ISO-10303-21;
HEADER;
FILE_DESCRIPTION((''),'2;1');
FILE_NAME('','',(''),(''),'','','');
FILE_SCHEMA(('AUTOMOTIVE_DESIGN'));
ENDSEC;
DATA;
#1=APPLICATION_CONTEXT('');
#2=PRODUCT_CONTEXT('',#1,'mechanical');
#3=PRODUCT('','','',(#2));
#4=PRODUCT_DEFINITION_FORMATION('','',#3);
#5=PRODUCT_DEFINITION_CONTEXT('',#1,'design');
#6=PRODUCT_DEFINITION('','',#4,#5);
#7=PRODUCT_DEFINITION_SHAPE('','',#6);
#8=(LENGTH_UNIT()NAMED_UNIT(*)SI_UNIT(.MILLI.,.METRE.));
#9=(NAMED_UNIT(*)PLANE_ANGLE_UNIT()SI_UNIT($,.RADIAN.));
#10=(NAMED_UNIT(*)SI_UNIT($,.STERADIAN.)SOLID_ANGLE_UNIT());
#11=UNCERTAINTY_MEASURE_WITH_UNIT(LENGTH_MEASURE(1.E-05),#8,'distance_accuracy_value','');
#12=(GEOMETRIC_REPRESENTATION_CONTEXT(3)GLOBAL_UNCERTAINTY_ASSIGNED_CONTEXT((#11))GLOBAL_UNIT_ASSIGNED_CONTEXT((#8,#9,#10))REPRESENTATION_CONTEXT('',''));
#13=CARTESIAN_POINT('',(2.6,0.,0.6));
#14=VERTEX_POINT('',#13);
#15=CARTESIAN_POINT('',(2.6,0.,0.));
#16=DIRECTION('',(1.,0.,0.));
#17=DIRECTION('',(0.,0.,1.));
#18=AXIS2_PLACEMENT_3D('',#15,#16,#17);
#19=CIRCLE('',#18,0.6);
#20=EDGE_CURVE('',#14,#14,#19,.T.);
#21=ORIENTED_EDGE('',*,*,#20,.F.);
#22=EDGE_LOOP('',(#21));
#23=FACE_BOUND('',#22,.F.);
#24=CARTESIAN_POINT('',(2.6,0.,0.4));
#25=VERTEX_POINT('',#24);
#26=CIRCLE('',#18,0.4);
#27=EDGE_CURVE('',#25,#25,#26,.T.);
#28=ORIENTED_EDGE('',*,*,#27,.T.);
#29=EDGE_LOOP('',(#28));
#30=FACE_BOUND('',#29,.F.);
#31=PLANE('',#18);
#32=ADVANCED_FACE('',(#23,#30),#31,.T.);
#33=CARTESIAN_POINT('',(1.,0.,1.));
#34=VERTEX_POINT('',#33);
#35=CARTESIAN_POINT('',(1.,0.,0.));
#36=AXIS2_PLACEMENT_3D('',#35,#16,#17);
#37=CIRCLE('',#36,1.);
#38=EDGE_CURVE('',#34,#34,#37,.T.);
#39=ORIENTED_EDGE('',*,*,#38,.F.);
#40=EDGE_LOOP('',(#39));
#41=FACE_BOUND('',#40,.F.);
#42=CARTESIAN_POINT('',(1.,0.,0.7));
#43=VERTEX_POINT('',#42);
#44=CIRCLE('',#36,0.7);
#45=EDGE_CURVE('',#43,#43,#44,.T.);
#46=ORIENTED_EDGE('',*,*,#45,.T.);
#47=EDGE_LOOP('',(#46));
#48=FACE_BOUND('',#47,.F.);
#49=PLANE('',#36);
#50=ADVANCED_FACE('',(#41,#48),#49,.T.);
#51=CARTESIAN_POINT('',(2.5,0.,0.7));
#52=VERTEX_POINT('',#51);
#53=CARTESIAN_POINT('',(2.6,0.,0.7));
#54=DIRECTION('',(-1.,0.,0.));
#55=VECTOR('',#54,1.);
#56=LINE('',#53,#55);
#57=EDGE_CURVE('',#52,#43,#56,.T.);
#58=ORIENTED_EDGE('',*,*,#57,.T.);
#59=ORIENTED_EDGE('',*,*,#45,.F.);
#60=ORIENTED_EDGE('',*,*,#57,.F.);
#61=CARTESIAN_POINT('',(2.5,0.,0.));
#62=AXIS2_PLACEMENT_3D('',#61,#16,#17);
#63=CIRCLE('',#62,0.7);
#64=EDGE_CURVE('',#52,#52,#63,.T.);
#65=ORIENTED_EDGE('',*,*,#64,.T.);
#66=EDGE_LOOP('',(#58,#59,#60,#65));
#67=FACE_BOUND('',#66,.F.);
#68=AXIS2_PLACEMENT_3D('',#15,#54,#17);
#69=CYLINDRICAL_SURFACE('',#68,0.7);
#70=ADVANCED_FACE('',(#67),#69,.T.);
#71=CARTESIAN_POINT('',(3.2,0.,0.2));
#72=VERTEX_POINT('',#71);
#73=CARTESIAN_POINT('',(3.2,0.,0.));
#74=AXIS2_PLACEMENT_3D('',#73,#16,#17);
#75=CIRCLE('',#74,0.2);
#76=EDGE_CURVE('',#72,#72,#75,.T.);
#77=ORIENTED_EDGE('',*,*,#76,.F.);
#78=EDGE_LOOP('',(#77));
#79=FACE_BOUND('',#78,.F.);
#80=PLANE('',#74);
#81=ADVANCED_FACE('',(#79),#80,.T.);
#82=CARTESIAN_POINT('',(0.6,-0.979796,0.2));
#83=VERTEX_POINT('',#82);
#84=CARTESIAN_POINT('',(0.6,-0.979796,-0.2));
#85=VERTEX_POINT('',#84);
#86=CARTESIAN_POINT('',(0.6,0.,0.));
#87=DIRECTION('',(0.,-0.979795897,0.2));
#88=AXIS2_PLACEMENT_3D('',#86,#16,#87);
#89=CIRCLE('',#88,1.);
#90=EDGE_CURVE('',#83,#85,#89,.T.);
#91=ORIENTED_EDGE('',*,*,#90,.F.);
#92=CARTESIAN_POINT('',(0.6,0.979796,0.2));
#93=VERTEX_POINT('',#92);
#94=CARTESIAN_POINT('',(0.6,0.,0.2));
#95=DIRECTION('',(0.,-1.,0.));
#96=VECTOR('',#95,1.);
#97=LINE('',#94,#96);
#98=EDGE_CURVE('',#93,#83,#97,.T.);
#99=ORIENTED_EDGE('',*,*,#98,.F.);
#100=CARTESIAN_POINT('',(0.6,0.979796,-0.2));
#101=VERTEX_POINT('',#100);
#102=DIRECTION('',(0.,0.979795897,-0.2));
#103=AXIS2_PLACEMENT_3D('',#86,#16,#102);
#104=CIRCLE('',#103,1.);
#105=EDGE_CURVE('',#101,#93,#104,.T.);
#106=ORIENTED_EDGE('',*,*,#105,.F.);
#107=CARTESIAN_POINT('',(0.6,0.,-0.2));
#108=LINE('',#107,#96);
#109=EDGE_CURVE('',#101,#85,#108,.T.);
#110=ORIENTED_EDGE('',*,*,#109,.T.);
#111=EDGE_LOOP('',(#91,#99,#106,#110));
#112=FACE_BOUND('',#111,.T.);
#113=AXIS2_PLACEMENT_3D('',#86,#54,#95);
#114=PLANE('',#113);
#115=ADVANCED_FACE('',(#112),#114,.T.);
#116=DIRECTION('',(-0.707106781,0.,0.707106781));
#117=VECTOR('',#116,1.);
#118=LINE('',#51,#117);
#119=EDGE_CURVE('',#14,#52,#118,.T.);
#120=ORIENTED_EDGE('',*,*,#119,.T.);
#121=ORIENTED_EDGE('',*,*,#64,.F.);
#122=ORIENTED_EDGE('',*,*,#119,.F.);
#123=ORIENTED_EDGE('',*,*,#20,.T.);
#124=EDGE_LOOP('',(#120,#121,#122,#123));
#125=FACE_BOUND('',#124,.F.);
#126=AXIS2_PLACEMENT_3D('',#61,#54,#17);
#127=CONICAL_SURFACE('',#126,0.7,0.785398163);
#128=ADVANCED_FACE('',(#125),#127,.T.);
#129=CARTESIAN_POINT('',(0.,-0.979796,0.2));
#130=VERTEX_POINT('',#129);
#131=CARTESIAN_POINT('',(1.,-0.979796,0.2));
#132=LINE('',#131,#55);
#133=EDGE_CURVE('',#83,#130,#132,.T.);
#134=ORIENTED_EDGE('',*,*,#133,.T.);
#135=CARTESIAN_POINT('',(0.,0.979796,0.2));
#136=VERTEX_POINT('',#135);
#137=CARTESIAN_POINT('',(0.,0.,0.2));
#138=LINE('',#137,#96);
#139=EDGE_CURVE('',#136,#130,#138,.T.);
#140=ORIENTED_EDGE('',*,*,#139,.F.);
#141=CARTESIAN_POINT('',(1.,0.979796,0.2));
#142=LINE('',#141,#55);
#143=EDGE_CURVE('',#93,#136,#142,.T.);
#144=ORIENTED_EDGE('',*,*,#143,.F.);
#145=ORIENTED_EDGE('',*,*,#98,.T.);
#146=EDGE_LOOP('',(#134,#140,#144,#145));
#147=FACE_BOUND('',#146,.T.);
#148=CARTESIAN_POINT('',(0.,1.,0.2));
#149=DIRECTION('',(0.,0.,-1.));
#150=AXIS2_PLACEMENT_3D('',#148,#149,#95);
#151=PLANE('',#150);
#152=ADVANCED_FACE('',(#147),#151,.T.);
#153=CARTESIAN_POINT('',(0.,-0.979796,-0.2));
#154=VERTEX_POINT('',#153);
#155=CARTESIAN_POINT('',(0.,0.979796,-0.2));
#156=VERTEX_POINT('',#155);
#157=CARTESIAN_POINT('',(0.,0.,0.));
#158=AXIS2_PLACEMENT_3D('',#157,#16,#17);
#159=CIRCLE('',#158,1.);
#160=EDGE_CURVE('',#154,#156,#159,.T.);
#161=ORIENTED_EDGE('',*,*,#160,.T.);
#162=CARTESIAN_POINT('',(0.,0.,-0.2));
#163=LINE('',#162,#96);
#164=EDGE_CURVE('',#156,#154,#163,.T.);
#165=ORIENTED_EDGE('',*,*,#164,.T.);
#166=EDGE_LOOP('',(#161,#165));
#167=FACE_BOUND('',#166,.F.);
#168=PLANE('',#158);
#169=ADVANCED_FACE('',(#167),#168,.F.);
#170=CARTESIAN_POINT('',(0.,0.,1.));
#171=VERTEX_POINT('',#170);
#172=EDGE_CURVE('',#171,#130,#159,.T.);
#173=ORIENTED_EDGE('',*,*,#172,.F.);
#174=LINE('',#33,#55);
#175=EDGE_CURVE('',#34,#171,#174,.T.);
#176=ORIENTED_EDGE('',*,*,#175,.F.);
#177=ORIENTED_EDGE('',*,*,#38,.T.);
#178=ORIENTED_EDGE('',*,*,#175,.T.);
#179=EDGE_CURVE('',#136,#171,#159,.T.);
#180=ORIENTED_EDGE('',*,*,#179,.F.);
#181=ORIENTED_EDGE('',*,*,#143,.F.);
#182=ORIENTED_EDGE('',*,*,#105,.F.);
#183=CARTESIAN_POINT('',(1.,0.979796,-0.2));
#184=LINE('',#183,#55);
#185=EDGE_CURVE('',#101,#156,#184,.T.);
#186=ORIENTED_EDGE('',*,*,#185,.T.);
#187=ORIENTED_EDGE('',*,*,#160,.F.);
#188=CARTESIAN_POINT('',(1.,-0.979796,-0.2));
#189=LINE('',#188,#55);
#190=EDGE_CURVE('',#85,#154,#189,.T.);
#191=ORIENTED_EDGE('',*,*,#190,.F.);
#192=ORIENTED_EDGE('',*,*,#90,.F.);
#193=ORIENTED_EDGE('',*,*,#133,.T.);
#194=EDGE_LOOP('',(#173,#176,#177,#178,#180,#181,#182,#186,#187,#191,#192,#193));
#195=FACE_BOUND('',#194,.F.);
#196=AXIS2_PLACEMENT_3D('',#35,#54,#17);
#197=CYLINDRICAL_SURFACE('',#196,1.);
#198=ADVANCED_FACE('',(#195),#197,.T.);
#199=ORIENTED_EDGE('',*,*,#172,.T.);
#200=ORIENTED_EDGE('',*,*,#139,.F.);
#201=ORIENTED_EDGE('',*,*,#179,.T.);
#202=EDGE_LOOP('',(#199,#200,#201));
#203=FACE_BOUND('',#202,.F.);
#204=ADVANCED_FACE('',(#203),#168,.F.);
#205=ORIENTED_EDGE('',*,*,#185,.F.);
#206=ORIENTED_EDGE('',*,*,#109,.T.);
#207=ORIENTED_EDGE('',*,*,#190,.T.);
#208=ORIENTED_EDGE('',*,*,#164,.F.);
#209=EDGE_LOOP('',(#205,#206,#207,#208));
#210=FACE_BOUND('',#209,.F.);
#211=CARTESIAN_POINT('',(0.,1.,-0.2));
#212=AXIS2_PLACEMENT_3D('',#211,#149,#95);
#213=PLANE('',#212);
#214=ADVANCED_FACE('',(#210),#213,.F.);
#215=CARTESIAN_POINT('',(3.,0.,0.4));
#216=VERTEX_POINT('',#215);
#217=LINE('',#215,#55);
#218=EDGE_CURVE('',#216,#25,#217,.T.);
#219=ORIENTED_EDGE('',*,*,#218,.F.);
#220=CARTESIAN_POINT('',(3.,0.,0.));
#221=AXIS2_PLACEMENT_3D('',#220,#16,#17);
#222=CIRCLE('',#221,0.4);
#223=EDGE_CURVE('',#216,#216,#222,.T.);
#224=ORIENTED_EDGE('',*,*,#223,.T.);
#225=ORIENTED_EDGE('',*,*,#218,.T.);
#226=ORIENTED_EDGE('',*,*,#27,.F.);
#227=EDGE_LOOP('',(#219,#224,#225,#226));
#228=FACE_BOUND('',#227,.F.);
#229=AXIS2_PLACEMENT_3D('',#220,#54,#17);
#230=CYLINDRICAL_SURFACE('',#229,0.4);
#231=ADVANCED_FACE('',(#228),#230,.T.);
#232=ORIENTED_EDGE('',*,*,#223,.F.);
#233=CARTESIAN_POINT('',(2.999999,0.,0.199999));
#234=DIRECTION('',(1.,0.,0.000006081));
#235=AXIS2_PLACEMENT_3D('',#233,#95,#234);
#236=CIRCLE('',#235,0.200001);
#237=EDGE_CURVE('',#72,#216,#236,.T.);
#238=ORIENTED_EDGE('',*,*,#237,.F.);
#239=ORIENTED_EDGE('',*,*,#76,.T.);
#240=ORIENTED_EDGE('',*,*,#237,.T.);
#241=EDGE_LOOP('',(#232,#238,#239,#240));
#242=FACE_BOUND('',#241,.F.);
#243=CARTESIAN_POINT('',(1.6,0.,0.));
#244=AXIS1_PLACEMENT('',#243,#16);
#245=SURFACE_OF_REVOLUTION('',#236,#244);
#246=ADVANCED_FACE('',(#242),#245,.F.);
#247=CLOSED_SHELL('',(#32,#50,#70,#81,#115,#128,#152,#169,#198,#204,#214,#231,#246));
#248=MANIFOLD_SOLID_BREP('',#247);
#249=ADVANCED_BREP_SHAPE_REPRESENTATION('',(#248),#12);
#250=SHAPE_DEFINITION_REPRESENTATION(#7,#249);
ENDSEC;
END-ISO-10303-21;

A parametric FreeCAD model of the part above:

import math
import FreeCAD as App
import Part
import Sketcher


def edges_at(feature, points):
    """Names of the edges that pass closest to the given points."""
    edges = feature.Shape.Edges
    near = lambda p: min(range(len(edges)), key=lambda i: edges[i].distToShape(Part.Vertex(*p))[0])
    return sorted({f"Edge{near(p) + 1}" for p in points})

doc = App.newDocument("Part")
params = doc.addObject("Spreadsheet::Sheet", "Params")
for row, (alias, value) in enumerate([
    ("sketch1_radius", "0.200001 mm"),
    ("sketch1_width", "1 mm"),
    ("sketch1_width2", "3.2 mm"),
    ("sketch1_width3", "0.4 mm"),
    ("sketch1_width4", "1.6 mm"),
    ("revolution_angle", "360 deg"),
    ("chamfer_size", "0.1 mm"),
    ("sketch2_width", "2 mm"),
    ("sketch2_height", "0.4 mm"),
    ("pocket1_length", "0.6 mm"),
], start=1):
    params.set(f"A{row}", alias)
    params.set(f"B{row}", "=" + value)
    params.setAlias(f"B{row}", alias)

body = doc.addObject("PartDesign::Body", "Body")

sketch1 = body.newObject("Sketcher::SketchObject", "Sketch")
sketch1.AttachmentSupport = (doc.getObject("XZ_Plane"), [""])
sketch1.MapMode = "FlatFace"
sketch1.addGeometry(Part.LineSegment(App.Vector(1, 1, 0), App.Vector(0, 1, 0)), False)
sketch1.addGeometry(Part.LineSegment(App.Vector(0, 1, 0), App.Vector(0, 0, 0)), False)
sketch1.addGeometry(Part.LineSegment(App.Vector(0, 0, 0), App.Vector(3.2, 0, 0)), False)
sketch1.addGeometry(Part.LineSegment(App.Vector(3.2, 0, 0), App.Vector(3.2, 0.2, 0)), False)
sketch1.addGeometry(Part.ArcOfCircle(Part.Circle(App.Vector(3, 0.2, 0), App.Vector(0, 0, 1), 0.2), math.radians(0), math.radians(90)), False)
sketch1.addGeometry(Part.LineSegment(App.Vector(3, 0.4, 0), App.Vector(2.6, 0.4, 0)), False)
sketch1.addGeometry(Part.LineSegment(App.Vector(2.6, 0.4, 0), App.Vector(2.6, 0.7, 0)), False)
sketch1.addGeometry(Part.LineSegment(App.Vector(2.6, 0.7, 0), App.Vector(1, 0.7, 0)), False)
sketch1.addGeometry(Part.LineSegment(App.Vector(1, 0.7, 0), App.Vector(1, 1, 0)), False)
sketch1.addConstraint(Sketcher.Constraint("Coincident", 0, 2, 1, 1))
sketch1.addConstraint(Sketcher.Constraint("Coincident", 1, 2, 2, 1))
sketch1.addConstraint(Sketcher.Constraint("Coincident", 2, 2, 3, 1))
sketch1.addConstraint(Sketcher.Constraint("Coincident", 3, 2, 4, 1))
sketch1.addConstraint(Sketcher.Constraint("Coincident", 4, 2, 5, 1))
sketch1.addConstraint(Sketcher.Constraint("Coincident", 5, 2, 6, 1))
sketch1.addConstraint(Sketcher.Constraint("Coincident", 6, 2, 7, 1))
sketch1.addConstraint(Sketcher.Constraint("Coincident", 7, 2, 8, 1))
sketch1.addConstraint(Sketcher.Constraint("Coincident", 8, 2, 0, 1))
sketch1.addConstraint(Sketcher.Constraint("Horizontal", 0))
sketch1.addConstraint(Sketcher.Constraint("Vertical", 1))
sketch1.addConstraint(Sketcher.Constraint("Horizontal", 2))
sketch1.addConstraint(Sketcher.Constraint("Vertical", 3))
sketch1.addConstraint(Sketcher.Constraint("Horizontal", 5))
sketch1.addConstraint(Sketcher.Constraint("Vertical", 6))
sketch1.addConstraint(Sketcher.Constraint("Horizontal", 7))
sketch1.addConstraint(Sketcher.Constraint("Vertical", 8))
sketch1.addConstraint(Sketcher.Constraint("Coincident", 1, 2, -1, 1))
sketch1.addConstraint(Sketcher.Constraint("Horizontal", 4, 3, 3, 2))
sketch1.addConstraint(Sketcher.Constraint("Equal", 0, 1))
sketch1.addConstraint(Sketcher.Constraint("Equal", 6, 8))
sketch1.addConstraint(Sketcher.Constraint("Radius", 4, 0.200001))
sketch1.addConstraint(Sketcher.Constraint("DistanceX", 0, 2, 0, 1, 1.0))
sketch1.addConstraint(Sketcher.Constraint("DistanceX", 2, 1, 2, 2, 3.2))
sketch1.addConstraint(Sketcher.Constraint("DistanceX", 5, 2, 5, 1, 0.4))
sketch1.addConstraint(Sketcher.Constraint("DistanceX", 7, 2, 7, 1, 1.6))
sketch1.addConstraint(Sketcher.Constraint("DistanceY", 3, 1, 3, 2, 0.2))
sketch1.setExpression("Constraints[21]", "Params.sketch1_radius")
sketch1.setExpression("Constraints[22]", "Params.sketch1_width")
sketch1.setExpression("Constraints[23]", "Params.sketch1_width2")
sketch1.setExpression("Constraints[24]", "Params.sketch1_width3")
sketch1.setExpression("Constraints[25]", "Params.sketch1_width4")
revolution = body.newObject("PartDesign::Revolution", "Revolution")
revolution.Profile = sketch1
revolution.ReferenceAxis = (sketch1, ["H_Axis"])
revolution.setExpression("Angle", "Params.revolution_angle")
doc.recompute()

chamfer = body.newObject("PartDesign::Chamfer", "Chamfer")
chamfer.Base = (revolution, edges_at(revolution, [(2.6, 0, -0.7)]))
chamfer.setExpression("Size", "Params.chamfer_size")

sketch2 = body.newObject("Sketcher::SketchObject", "Sketch001")
sketch2.AttachmentSupport = (doc.getObject("YZ_Plane"), [""])
sketch2.MapMode = "FlatFace"
sketch2.addGeometry(Part.LineSegment(App.Vector(1, 0.2, 0), App.Vector(1, -0.2, 0)), False)
sketch2.addGeometry(Part.LineSegment(App.Vector(1, -0.2, 0), App.Vector(-1, -0.2, 0)), False)
sketch2.addGeometry(Part.LineSegment(App.Vector(-1, -0.2, 0), App.Vector(-1, 0.2, 0)), False)
sketch2.addGeometry(Part.LineSegment(App.Vector(-1, 0.2, 0), App.Vector(1, 0.2, 0)), False)
sketch2.addConstraint(Sketcher.Constraint("Coincident", 0, 2, 1, 1))
sketch2.addConstraint(Sketcher.Constraint("Coincident", 1, 2, 2, 1))
sketch2.addConstraint(Sketcher.Constraint("Coincident", 2, 2, 3, 1))
sketch2.addConstraint(Sketcher.Constraint("Coincident", 3, 2, 0, 1))
sketch2.addConstraint(Sketcher.Constraint("Vertical", 0))
sketch2.addConstraint(Sketcher.Constraint("Horizontal", 1))
sketch2.addConstraint(Sketcher.Constraint("Vertical", 2))
sketch2.addConstraint(Sketcher.Constraint("Horizontal", 3))
sketch2.addConstraint(Sketcher.Constraint("Symmetric", 0, 2, 2, 2, -1, 1))
sketch2.addConstraint(Sketcher.Constraint("DistanceX", 1, 2, 1, 1, 2.0))
sketch2.addConstraint(Sketcher.Constraint("DistanceY", 0, 2, 0, 1, 0.4))
sketch2.setExpression("Constraints[9]", "Params.sketch2_width")
sketch2.setExpression("Constraints[10]", "Params.sketch2_height")
pocket1 = body.newObject("PartDesign::Pocket", "Pocket")
pocket1.Profile = sketch2
pocket1.setExpression("Length", "Params.pocket1_length")
pocket1.Reversed = True

doc.recompute()
